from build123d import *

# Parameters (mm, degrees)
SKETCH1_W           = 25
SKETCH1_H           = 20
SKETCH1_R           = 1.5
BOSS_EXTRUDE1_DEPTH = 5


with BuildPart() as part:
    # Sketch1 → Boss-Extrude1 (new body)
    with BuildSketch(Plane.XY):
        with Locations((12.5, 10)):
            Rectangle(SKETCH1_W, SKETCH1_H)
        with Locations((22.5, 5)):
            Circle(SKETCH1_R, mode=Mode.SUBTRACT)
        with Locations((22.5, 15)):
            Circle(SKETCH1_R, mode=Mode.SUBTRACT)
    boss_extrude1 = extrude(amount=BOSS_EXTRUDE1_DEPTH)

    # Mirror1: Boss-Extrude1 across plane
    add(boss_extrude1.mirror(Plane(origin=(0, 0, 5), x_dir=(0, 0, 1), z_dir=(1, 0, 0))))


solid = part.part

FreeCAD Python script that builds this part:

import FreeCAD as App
import Part
import Sketcher
from FreeCAD import Vector

doc = App.newDocument("Part")
body = doc.addObject("PartDesign::Body", "Body")

sketch1 = body.newObject("Sketcher::SketchObject", "Sketch")
sketch1.AttachmentSupport = (doc.getObject("XY_Plane"), [""])
sketch1.MapMode = "FlatFace"
sketch1.addGeometry([
    Part.LineSegment(Vector(0, 20, 0), Vector(0, 0, 0)),
    Part.LineSegment(Vector(0, 0, 0), Vector(25, 0, 0)),
    Part.LineSegment(Vector(25, 0, 0), Vector(25, 20, 0)),
    Part.LineSegment(Vector(25, 20, 0), Vector(0, 20, 0)),
    Part.Circle(Vector(22.5, 5, 0), Vector(0, 0, 1), 1.5),
    Part.Circle(Vector(22.5, 15, 0), Vector(0, 0, 1), 1.5),
], False)
sketch1.addConstraint([
    Sketcher.Constraint("Coincident", 0, 2, 1, 1),
    Sketcher.Constraint("Coincident", 1, 2, 2, 1),
    Sketcher.Constraint("Coincident", 2, 2, 3, 1),
    Sketcher.Constraint("Coincident", 3, 2, 0, 1),
    Sketcher.Constraint("Vertical", 0),
    Sketcher.Constraint("Horizontal", 1),
    Sketcher.Constraint("Vertical", 2),
    Sketcher.Constraint("Horizontal", 3),
    Sketcher.Constraint("Coincident", 0, 2, -1, 1),
    Sketcher.Constraint("Equal", 4, 5),
    Sketcher.Constraint("Vertical", 4, 3, 5, 3),
    Sketcher.Constraint("Diameter", 4, 3.0),
    Sketcher.Constraint("DistanceX", 1, 1, 1, 2, 25.0),
    Sketcher.Constraint("DistanceY", 0, 2, 0, 1, 20.0),
    Sketcher.Constraint("DistanceY", -1, 1, 4, 3, 5.0),
    Sketcher.Constraint("DistanceY", -1, 1, 5, 3, 15.0),
    Sketcher.Constraint("DistanceX", -1, 1, 4, 3, 22.5),
])
pad1 = body.newObject("PartDesign::Pad", "Pad")
pad1.Profile = sketch1
pad1.Length = 5
doc.recompute()

mirrored = body.newObject("PartDesign::Mirrored", "Mirrored")
mirrored.Originals = [pad1]
mirrored.MirrorPlane = (doc.getObject("YZ_Plane"), [""])
body.Tip = mirrored

doc.recompute()
